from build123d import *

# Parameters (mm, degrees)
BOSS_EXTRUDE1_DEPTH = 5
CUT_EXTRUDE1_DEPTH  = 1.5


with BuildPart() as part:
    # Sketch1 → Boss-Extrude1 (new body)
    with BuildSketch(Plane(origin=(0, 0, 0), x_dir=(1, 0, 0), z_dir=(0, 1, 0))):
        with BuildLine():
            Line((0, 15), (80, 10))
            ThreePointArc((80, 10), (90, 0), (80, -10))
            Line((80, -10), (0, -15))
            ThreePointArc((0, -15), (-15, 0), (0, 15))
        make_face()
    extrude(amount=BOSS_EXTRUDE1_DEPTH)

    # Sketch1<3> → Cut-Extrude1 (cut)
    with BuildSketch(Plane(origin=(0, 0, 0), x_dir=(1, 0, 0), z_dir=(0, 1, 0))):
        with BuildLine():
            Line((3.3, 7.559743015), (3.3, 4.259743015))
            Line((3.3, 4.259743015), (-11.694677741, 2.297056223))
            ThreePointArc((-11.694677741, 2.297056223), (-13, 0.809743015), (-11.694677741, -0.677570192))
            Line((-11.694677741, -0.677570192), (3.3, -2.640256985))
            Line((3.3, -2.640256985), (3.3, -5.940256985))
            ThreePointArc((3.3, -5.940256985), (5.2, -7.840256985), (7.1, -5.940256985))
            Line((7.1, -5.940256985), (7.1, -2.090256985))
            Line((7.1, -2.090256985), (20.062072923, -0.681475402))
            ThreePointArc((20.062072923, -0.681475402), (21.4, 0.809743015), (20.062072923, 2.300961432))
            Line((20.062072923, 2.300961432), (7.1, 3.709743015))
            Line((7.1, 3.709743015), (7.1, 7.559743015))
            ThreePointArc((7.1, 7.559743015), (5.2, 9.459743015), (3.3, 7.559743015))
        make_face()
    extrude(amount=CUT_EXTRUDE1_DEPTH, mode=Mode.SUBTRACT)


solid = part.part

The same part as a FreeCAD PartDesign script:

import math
import FreeCAD as App
import Part
import Sketcher
Q = App.Units.Quantity

doc = App.newDocument("Part")
params = doc.addObject("Spreadsheet::Sheet", "Params")
for row, (alias, value) in enumerate([
    ("sketch1_radius", "15 mm"),
    ("sketch1_radius2", "10 mm"),
    ("pad1_length", "5 mm"),
    ("sketch2_radius", "1.5 mm"),
    ("sketch2_radius2", "1.9 mm"),
    ("sketch2_height", "3.3 mm"),
    ("sketch2_height2", "3.85 mm"),
    ("pocket1_length", "1.5 mm"),
], start=1):
    params.set(f"A{row}", alias)
    params.set(f"B{row}", "=" + value)
    params.setAlias(f"B{row}", alias)

body = doc.addObject("PartDesign::Body", "Body")

# Sketch on XZ plane
sketch1 = body.newObject("Sketcher::SketchObject", "Sketch")
sketch1.AttachmentSupport = (doc.getObject("XZ_Plane"), [""])
sketch1.MapMode = "FlatFace"
sketch1.addGeometry(Part.LineSegment(App.Vector(80, -10, 0), App.Vector(0, -15, 0)), False)
sketch1.addGeometry(Part.ArcOfCircle(Part.Circle(App.Vector(0, 0, 0), App.Vector(0, 0, 1), 15), math.radians(90), math.radians(270)), False)
sketch1.addGeometry(Part.LineSegment(App.Vector(0, 15, 0), App.Vector(80, 10, 0)), False)
sketch1.addGeometry(Part.ArcOfCircle(Part.Circle(App.Vector(80, 0, 0), App.Vector(0, 0, 1), 10), math.radians(-90), math.radians(90)), False)
sketch1.addConstraint(Sketcher.Constraint("Coincident", 0, 2, 1, 2))
sketch1.addConstraint(Sketcher.Constraint("Coincident", 1, 1, 2, 1))
sketch1.addConstraint(Sketcher.Constraint("Coincident", 2, 2, 3, 2))
sketch1.addConstraint(Sketcher.Constraint("Coincident", 3, 1, 0, 1))
sketch1.addConstraint(Sketcher.Constraint("Coincident", 1, 3, -1, 1))
sketch1.addConstraint(Sketcher.Constraint("Symmetric", 2, 2, 3, 1, -1))
sketch1.addConstraint(Sketcher.Constraint("PointOnObject", 0, 2, -2))
sketch1.addConstraint(Sketcher.Constraint("PointOnObject", 1, 1, -2))
sketch1.addConstraint(Sketcher.Constraint("Vertical", 3, 3, 2, 2))
sketch1.addConstraint(Sketcher.Constraint("Radius", 1, Q("15 mm")))
sketch1.addConstraint(Sketcher.Constraint("Radius", 3, Q("10 mm")))
sketch1.addConstraint(Sketcher.Constraint("DistanceX", -1, 1, 3, 3, Q("80 mm")))
sketch1.setExpression("Constraints[9]", "Params.sketch1_radius")
sketch1.setExpression("Constraints[10]", "Params.sketch1_radius2")
pad1 = body.newObject("PartDesign::Pad", "Pad")
pad1.Profile = sketch1
pad1.setExpression("Length", "Params.pad1_length")
pad1.Reversed = True

# Sketch on XZ plane
sketch2 = body.newObject("Sketcher::SketchObject", "Sketch001")
sketch2.AttachmentSupport = (doc.getObject("XZ_Plane"), [""])
sketch2.MapMode = "FlatFace"
sketch2.addGeometry(Part.LineSegment(App.Vector(3.3, -7.6, 0), App.Vector(3.3, -4.3, 0)), False)
sketch2.addGeometry(Part.LineSegment(App.Vector(3.3, -4.3, 0), App.Vector(-11.7, -2.3, 0)), False)
sketch2.addGeometry(Part.ArcOfCircle(Part.Circle(App.Vector(-11.5, -0.8, 0), App.Vector(0, 0, 1), 1.5), math.radians(97), math.radians(263)), False)
sketch2.addGeometry(Part.LineSegment(App.Vector(-11.7, 0.7, 0), App.Vector(3.3, 2.6, 0)), False)
sketch2.addGeometry(Part.LineSegment(App.Vector(3.3, 2.6, 0), App.Vector(3.3, 5.9, 0)), False)
sketch2.addGeometry(Part.ArcOfCircle(Part.Circle(App.Vector(5.2, 5.9, 0), App.Vector(0, 0, 1), 1.9), math.radians(0), math.radians(180)), False)
sketch2.addGeometry(Part.LineSegment(App.Vector(7.1, 5.9, 0), App.Vector(7.1, 2.1, 0)), False)
sketch2.addGeometry(Part.LineSegment(App.Vector(7.1, 2.1, 0), App.Vector(20.1, 0.7, 0)), False)
sketch2.addGeometry(Part.ArcOfCircle(Part.Circle(App.Vector(19.9, -0.8, 0), App.Vector(0, 0, 1), 1.5), math.radians(-84), math.radians(84)), False)
sketch2.addGeometry(Part.LineSegment(App.Vector(20.1, -2.3, 0), App.Vector(7.1, -3.7, 0)), False)
sketch2.addGeometry(Part.LineSegment(App.Vector(7.1, -3.7, 0), App.Vector(7.1, -7.6, 0)), False)
sketch2.addGeometry(Part.ArcOfCircle(Part.Circle(App.Vector(5.2, -7.6, 0), App.Vector(0, 0, 1), 1.9), math.radians(180), math.radians(360)), False)
sketch2.addConstraint(Sketcher.Constraint("Coincident", 0, 2, 1, 1))
sketch2.addConstraint(Sketcher.Constraint("Tangent", 1, 2, 2, 2))
sketch2.addConstraint(Sketcher.Constraint("Tangent", 2, 1, 3, 1))
sketch2.addConstraint(Sketcher.Constraint("Coincident", 3, 2, 4, 1))
sketch2.addConstraint(Sketcher.Constraint("Tangent", 4, 2, 5, 2))
sketch2.addConstraint(Sketcher.Constraint("Tangent", 5, 1, 6, 1))
sketch2.addConstraint(Sketcher.Constraint("Coincident", 6, 2, 7, 1))
sketch2.addConstraint(Sketcher.Constraint("Tangent", 7, 2, 8, 2))
sketch2.addConstraint(Sketcher.Constraint("Tangent", 8, 1, 9, 1))
sketch2.addConstraint(Sketcher.Constraint("Coincident", 9, 2, 10, 1))
sketch2.addConstraint(Sketcher.Constraint("Tangent", 10, 2, 11, 2))
sketch2.addConstraint(Sketcher.Constraint("Tangent", 11, 1, 0, 1))
sketch2.addConstraint(Sketcher.Constraint("Vertical", 0))
sketch2.addConstraint(Sketcher.Constraint("Vertical", 4))
sketch2.addConstraint(Sketcher.Constraint("Vertical", 6))
sketch2.addConstraint(Sketcher.Constraint("Vertical", 10))
sketch2.addConstraint(Sketcher.Constraint("Equal", 2, 8))
sketch2.addConstraint(Sketcher.Constraint("Equal", 5, 11))
sketch2.addConstraint(Sketcher.Constraint("Horizontal", 2, 3, 8, 3))
sketch2.addConstraint(Sketcher.Constraint("Vertical", 5, 3, 11, 3))
sketch2.addConstraint(Sketcher.Constraint("Vertical", 1, 2, 2, 1))
sketch2.addConstraint(Sketcher.Constraint("Vertical", 7, 2, 8, 1))
sketch2.addConstraint(Sketcher.Constraint("Equal", 0, 4))
sketch2.addConstraint(Sketcher.Constraint("Radius", 2, Q("1.5 mm")))
sketch2.addConstraint(Sketcher.Constraint("Radius", 5, Q("1.9 mm")))
sketch2.addConstraint(Sketcher.Constraint("DistanceY", 0, 1, 0, 2, Q("3.3 mm")))
sketch2.addConstraint(Sketcher.Constraint("DistanceY", 6, 2, 6, 1, Q("3.85 mm")))
sketch2.addConstraint(Sketcher.Constraint("DistanceX", 2, 3, -1, 1, Q("11.5 mm")))
sketch2.addConstraint(Sketcher.Constraint("DistanceX", -1, 1, 5, 3, Q("5.2 mm")))
sketch2.addConstraint(Sketcher.Constraint("DistanceX", -1, 1, 8, 3, Q("19.9 mm")))
sketch2.addConstraint(Sketcher.Constraint("DistanceY", 11, 3, 5, 3, Q("13.5 mm")))
sketch2.addConstraint(Sketcher.Constraint("DistanceY", -1, 1, 2, 1, Q("0.67757 mm")))
sketch2.setExpression("Constraints[23]", "Params.sketch2_radius")
sketch2.setExpression("Constraints[24]", "Params.sketch2_radius2")
sketch2.setExpression("Constraints[25]", "Params.sketch2_height")
sketch2.setExpression("Constraints[26]", "Params.sketch2_height2")
pocket1 = body.newObject("PartDesign::Pocket", "Pocket")
pocket1.Profile = sketch2
pocket1.setExpression("Length", "Params.pocket1_length")

doc.recompute()
